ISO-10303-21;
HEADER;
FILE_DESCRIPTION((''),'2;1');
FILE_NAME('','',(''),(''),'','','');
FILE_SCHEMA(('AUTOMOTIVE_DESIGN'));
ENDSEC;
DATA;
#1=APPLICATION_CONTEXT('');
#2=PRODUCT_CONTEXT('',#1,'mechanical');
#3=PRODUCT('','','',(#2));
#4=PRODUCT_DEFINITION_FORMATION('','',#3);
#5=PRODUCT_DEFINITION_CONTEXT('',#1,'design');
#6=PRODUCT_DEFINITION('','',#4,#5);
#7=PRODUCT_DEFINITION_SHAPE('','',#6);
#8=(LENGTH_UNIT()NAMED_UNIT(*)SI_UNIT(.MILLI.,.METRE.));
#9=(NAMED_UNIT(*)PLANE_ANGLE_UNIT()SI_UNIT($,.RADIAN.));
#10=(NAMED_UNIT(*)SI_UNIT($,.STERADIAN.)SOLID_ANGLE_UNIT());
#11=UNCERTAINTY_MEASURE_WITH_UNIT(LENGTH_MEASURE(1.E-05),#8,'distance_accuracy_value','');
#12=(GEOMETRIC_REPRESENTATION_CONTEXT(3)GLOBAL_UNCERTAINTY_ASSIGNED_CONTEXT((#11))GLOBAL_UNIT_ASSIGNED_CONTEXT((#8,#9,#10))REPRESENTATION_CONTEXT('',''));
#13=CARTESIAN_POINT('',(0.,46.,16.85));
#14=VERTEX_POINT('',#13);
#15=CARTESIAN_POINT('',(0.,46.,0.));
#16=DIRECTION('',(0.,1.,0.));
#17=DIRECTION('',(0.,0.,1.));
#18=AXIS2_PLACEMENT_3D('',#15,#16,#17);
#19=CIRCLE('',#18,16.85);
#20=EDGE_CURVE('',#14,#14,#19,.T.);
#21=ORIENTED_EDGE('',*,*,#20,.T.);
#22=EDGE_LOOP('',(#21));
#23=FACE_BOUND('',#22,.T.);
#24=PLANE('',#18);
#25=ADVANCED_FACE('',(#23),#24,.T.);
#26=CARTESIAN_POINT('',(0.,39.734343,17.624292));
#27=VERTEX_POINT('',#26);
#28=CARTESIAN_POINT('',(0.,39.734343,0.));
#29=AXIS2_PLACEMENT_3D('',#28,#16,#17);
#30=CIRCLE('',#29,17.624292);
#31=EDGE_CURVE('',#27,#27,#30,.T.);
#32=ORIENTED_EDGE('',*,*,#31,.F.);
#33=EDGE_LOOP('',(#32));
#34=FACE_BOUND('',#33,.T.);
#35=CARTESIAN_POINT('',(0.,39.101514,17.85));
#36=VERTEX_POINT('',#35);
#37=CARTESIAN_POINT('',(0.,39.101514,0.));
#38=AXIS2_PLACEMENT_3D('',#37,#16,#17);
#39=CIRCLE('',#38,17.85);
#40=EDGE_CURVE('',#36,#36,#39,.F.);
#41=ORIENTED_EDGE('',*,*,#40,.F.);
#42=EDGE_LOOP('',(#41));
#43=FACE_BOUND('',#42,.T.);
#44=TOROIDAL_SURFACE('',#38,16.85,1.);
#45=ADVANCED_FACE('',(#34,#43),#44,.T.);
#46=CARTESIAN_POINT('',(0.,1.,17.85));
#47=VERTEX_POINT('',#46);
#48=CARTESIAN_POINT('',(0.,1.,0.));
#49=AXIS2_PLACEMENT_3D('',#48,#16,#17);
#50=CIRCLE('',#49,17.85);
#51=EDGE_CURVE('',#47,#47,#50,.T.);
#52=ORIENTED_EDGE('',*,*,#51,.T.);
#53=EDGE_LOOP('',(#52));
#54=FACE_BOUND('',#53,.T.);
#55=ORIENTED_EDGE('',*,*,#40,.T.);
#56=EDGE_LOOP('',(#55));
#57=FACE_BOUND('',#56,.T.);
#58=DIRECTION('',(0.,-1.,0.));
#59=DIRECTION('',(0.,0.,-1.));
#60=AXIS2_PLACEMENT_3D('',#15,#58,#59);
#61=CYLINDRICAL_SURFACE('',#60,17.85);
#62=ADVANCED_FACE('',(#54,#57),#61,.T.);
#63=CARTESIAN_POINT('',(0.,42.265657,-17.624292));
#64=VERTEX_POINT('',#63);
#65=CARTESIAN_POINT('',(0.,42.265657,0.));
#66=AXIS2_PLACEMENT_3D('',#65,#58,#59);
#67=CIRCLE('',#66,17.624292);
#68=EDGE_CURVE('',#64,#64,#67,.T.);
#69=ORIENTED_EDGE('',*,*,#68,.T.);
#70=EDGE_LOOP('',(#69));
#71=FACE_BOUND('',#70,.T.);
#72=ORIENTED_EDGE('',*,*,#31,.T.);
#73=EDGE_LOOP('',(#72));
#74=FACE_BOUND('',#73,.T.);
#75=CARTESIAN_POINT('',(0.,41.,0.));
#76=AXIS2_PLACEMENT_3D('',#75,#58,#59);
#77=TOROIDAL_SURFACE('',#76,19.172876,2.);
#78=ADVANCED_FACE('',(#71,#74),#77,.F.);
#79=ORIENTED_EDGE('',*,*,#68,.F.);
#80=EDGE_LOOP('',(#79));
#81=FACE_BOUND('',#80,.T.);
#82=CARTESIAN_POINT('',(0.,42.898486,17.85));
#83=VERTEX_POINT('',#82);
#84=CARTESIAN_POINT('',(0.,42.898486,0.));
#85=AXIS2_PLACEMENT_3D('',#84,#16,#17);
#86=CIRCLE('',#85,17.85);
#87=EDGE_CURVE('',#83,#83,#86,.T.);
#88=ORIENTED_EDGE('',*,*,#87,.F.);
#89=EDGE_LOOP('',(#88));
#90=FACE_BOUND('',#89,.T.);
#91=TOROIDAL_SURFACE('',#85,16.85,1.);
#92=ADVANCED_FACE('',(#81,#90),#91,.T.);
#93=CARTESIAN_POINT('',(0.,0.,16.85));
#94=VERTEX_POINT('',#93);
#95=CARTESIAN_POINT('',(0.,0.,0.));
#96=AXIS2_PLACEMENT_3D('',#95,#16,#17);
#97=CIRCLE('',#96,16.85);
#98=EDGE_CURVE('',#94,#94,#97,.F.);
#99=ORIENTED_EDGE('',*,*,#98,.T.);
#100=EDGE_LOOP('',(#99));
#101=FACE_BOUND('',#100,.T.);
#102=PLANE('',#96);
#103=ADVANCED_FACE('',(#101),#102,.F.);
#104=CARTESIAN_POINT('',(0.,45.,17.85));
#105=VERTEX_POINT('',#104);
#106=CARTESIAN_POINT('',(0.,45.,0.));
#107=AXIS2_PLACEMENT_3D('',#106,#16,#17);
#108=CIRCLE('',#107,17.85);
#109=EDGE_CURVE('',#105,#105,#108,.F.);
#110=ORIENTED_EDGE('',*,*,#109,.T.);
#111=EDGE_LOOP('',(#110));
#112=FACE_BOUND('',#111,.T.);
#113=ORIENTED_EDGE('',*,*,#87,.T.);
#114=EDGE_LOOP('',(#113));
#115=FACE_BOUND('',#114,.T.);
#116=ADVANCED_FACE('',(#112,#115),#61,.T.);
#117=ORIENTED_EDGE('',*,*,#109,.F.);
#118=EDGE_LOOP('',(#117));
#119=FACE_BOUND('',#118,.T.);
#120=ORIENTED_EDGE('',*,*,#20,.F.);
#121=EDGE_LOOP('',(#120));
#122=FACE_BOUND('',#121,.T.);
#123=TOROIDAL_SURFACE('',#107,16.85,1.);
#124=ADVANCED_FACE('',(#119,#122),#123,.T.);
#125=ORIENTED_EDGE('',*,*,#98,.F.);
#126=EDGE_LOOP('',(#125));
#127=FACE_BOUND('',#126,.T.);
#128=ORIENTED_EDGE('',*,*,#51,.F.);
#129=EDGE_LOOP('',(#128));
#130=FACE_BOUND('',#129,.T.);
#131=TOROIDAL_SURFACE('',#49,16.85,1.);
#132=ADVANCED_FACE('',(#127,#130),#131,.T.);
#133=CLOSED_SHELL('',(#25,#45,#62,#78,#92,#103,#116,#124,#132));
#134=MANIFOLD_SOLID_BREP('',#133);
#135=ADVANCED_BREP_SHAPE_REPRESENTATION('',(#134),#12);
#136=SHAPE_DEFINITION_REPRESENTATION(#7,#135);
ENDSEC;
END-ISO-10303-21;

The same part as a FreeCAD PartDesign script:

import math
import FreeCAD as App
import Part
import Sketcher
from FreeCAD import Vector
Q = App.Units.Quantity


def edges_at(feature, points):
    """Names of the edges that pass closest to the given points."""
    edges = feature.Shape.Edges
    near = lambda p: min(range(len(edges)), key=lambda i: edges[i].distToShape(Part.Vertex(*p))[0])
    return sorted({f"Edge{near(p) + 1}" for p in points})

doc = App.newDocument("Part")
body = doc.addObject("PartDesign::Body", "Body")

# Sketch on XZ plane
sketch1 = body.newObject("Sketcher::SketchObject", "Sketch")
sketch1.AttachmentSupport = (doc.getObject("XZ_Plane"), [""])
sketch1.MapMode = "FlatFace"
sketch1.addGeometry(Part.Circle(Vector(0, 0, 0), Vector(0, 0, 1), 18), False)
sketch1.addConstraint([
    Sketcher.Constraint("Coincident", 0, 3, -1, 1),
    Sketcher.Constraint("Diameter", 0, Q("35.7 mm")),
])
pad1 = body.newObject("PartDesign::Pad", "Pad")
pad1.Profile = sketch1
pad1.Length = 46
pad1.Reversed = True

# Sketch on XY plane
sketch2 = body.newObject("Sketcher::SketchObject", "Sketch001")
sketch2.AttachmentSupport = (doc.getObject("XY_Plane"), [""])
sketch2.MapMode = "FlatFace"
sketch2.addGeometry([
    Part.LineSegment(Vector(17.9, 39.5, 0), Vector(17.9, 42.5, 0)),
    Part.ArcOfCircle(Part.Circle(Vector(19.2, 41, 0), Vector(0, 0, 1), 2), math.radians(131), math.radians(229)),
], False)
sketch2.addConstraint([
    Sketcher.Constraint("Coincident", 0, 1, 1, 2),
    Sketcher.Constraint("Coincident", 1, 1, 0, 2),
    Sketcher.Constraint("Vertical", 0),
    Sketcher.Constraint("Radius", 1, Q("2 mm")),
    Sketcher.Constraint("DistanceY", 0, 1, 0, 2, Q("3 mm")),
    Sketcher.Constraint("DistanceY", -1, 1, 1, 3, Q("41 mm")),
    Sketcher.Constraint("DistanceX", -1, 1, 0, 1, Q("17.85 mm")),
])

# Sketch on XZ plane
sketch3 = body.newObject("Sketcher::SketchObject", "Sketch002")
sketch3.AttachmentSupport = (doc.getObject("XZ_Plane"), [""])
sketch3.MapMode = "FlatFace"
sketch3.AttachmentOffset = App.Placement(Vector(0, 0, -46), App.Rotation())
sketch3.addGeometry([
    Part.ArcOfCircle(Part.Circle(Vector(0, 0, 0), Vector(0, 0, 1), 18), math.radians(0), math.radians(90)),
    Part.ArcOfCircle(Part.Circle(Vector(0, 0, 0), Vector(0, 0, 1), 18), math.radians(-90), math.radians(0)),
    Part.ArcOfCircle(Part.Circle(Vector(0, 0, 0), Vector(0, 0, 1), 18), math.radians(-180), math.radians(-90)),
    Part.ArcOfCircle(Part.Circle(Vector(0, 0, 0), Vector(0, 0, 1), 18), math.radians(90), math.radians(180)),
], False)
sketch3.addConstraint([
    Sketcher.Constraint("Tangent", 0, 1, 1, 2),
    Sketcher.Constraint("Tangent", 1, 1, 2, 2),
    Sketcher.Constraint("Tangent", 2, 1, 3, 2),
    Sketcher.Constraint("Tangent", 3, 1, 0, 2),
    Sketcher.Constraint("Coincident", 0, 3, -1, 1),
    Sketcher.Constraint("Equal", 0, 1),
    Sketcher.Constraint("PointOnObject", 0, 1, -1),
    Sketcher.Constraint("PointOnObject", 1, 1, -2),
    Sketcher.Constraint("PointOnObject", 2, 1, -1),
    Sketcher.Constraint("PointOnObject", 3, 1, -2),
    Sketcher.Constraint("Radius", 0, Q("17.85 mm")),
])
doc.recompute()

subtractivepipe = body.newObject("PartDesign::SubtractivePipe", "SubtractivePipe")
subtractivepipe.Profile = sketch2
subtractivepipe.Spine = (sketch3, ["Edge1", "Edge2", "Edge3", "Edge4"])
doc.recompute()

fillet = body.newObject("PartDesign::Fillet", "Fillet")
fillet.Base = (subtractivepipe, edges_at(subtractivepipe, [(0, 0, -17.85), (0, 46, -17.85)]))
fillet.Radius = 1
doc.recompute()

fillet2 = body.newObject("PartDesign::Fillet", "Fillet001")
fillet2.Base = (fillet, edges_at(fillet, [(12.622, 39.5, -12.622), (12.622, 42.5, -12.622)]))
fillet2.Radius = 1

doc.recompute()
